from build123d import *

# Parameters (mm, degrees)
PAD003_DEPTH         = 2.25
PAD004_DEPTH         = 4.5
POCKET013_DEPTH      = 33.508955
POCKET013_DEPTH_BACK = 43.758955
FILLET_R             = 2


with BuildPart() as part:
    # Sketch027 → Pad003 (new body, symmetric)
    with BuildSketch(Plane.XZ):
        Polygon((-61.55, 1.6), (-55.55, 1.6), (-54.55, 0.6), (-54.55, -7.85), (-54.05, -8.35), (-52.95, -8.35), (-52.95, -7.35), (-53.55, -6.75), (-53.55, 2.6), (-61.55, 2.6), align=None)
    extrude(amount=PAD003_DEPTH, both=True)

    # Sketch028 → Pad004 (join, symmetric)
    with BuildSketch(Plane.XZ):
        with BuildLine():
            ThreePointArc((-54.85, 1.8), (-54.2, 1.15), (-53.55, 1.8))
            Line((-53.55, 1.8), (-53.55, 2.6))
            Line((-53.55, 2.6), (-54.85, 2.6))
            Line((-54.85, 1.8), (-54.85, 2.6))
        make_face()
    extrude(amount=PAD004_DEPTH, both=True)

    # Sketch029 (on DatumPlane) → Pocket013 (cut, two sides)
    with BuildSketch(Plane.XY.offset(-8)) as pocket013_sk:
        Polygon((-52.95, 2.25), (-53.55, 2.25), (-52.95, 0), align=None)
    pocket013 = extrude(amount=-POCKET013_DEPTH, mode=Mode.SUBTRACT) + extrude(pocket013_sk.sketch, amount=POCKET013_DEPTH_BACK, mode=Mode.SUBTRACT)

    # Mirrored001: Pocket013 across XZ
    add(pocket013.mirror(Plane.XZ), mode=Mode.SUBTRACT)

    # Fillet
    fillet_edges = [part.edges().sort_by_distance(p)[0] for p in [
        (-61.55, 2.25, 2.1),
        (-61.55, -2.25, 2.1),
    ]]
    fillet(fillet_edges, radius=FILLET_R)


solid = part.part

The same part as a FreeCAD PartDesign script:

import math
import FreeCAD as App
import Part
import Sketcher
from FreeCAD import Vector
Q = App.Units.Quantity


def edges_at(feature, points):
    """Names of the edges that pass closest to the given points."""
    edges = feature.Shape.Edges
    near = lambda p: min(range(len(edges)), key=lambda i: edges[i].distToShape(Part.Vertex(*p))[0])
    return sorted({f"Edge{near(p) + 1}" for p in points})


def add_polygon(sketch, points):
    """Adds a closed chain of lines whose ends are joined by coincident constraints."""
    first, n = sketch.GeometryCount, len(points)
    for a, b in zip(points, points[1:] + points[:1]):
        sketch.addGeometry(Part.LineSegment(App.Vector(*a, 0), App.Vector(*b, 0)), False)
    for i in range(n):
        sketch.addConstraint(Sketcher.Constraint("Coincident", first + i, 2, first + (i + 1) % n, 1))

doc = App.newDocument("Part")
body = doc.addObject("PartDesign::Body", "Body")

sketch1 = body.newObject("Sketcher::SketchObject", "Sketch")
sketch1.AttachmentSupport = (doc.getObject("XZ_Plane"), [""])
sketch1.MapMode = "FlatFace"
add_polygon(sketch1, [(-61.5, 1.6), (-55.5, 1.6), (-54.5, 0.6), (-54.5, -7.8), (-54, -8.3), (-53, -8.3), (-53, -7.3), (-53.5, -6.8), (-53.5, 2.6), (-61.5, 2.6)])
sketch1.addConstraint(Sketcher.Constraint("Horizontal", 0))
sketch1.addConstraint(Sketcher.Constraint("Vertical", 2))
sketch1.addConstraint(Sketcher.Constraint("Horizontal", 4))
sketch1.addConstraint(Sketcher.Constraint("Vertical", 5))
sketch1.addConstraint(Sketcher.Constraint("Vertical", 7))
sketch1.addConstraint(Sketcher.Constraint("Horizontal", 8))
sketch1.addConstraint(Sketcher.Constraint("Vertical", 9))
sketch1.addConstraint(Sketcher.Constraint("Parallel", 1, 3))
sketch1.addConstraint(Sketcher.Constraint("Parallel", 3, 6))
sketch1.addConstraint(Sketcher.Constraint("Equal", 5, 9))
sketch1.addConstraint(Sketcher.Constraint("DistanceX", 0, 1, 0, 2, Q("6 mm")))
sketch1.addConstraint(Sketcher.Constraint("DistanceX", 8, 2, 8, 1, Q("8 mm")))
sketch1.addConstraint(Sketcher.Constraint("DistanceY", 5, 1, 5, 2, Q("1 mm")))
sketch1.addConstraint(Sketcher.Constraint("Angle", 1, Q("-45 deg")))
sketch1.addConstraint(Sketcher.Constraint("DistanceX", 4, 1, 4, 2, Q("1.1 mm")))
sketch1.addConstraint(Sketcher.Constraint("DistanceX", 0, 2, 1, 2, Q("1 mm")))
sketch1.addConstraint(Sketcher.Constraint("DistanceY", 2, 2, 2, 1, Q("8.45 mm")))
sketch1.addConstraint(Sketcher.Constraint("DistanceY", -1, 1, 0, 2, Q("1.6 mm")))
sketch1.addConstraint(Sketcher.Constraint("DistanceX", 2, 2, 3, 2, Q("0.5 mm")))
sketch1.addConstraint(Sketcher.Constraint("DistanceX", 0, 2, -1, 1, Q("55.55 mm")))
pad1 = body.newObject("PartDesign::Pad", "Pad")
pad1.Profile = sketch1
pad1.Length = 4.5
pad1.Midplane = True

sketch2 = body.newObject("Sketcher::SketchObject", "Sketch001")
sketch2.AttachmentSupport = (doc.getObject("XZ_Plane"), [""])
sketch2.MapMode = "FlatFace"
sketch2.addGeometry(Part.ArcOfCircle(Part.Circle(Vector(-54.2, 1.8, 0), Vector(0, 0, 1), 0.7), math.radians(180), math.radians(360)), False)
sketch2.addGeometry(Part.LineSegment(Vector(-53.5, 1.8, 0), Vector(-53.5, 2.6, 0)), False)
sketch2.addGeometry(Part.LineSegment(Vector(-53.5, 2.6, 0), Vector(-54.9, 2.6, 0)), False)
sketch2.addGeometry(Part.LineSegment(Vector(-54.9, 2.6, 0), Vector(-54.9, 1.8, 0)), False)
sketch2.addConstraint(Sketcher.Constraint("Tangent", 0, 2, 1, 1))
sketch2.addConstraint(Sketcher.Constraint("Coincident", 1, 2, 2, 1))
sketch2.addConstraint(Sketcher.Constraint("Coincident", 2, 2, 3, 1))
sketch2.addConstraint(Sketcher.Constraint("Tangent", 3, 2, 0, 1))
sketch2.addConstraint(Sketcher.Constraint("Vertical", 1))
sketch2.addConstraint(Sketcher.Constraint("Horizontal", 2))
sketch2.addConstraint(Sketcher.Constraint("Vertical", 3))
sketch2.addConstraint(Sketcher.Constraint("Radius", 0, Q("0.65 mm")))
sketch2.addConstraint(Sketcher.Constraint("DistanceY", 1, 1, 1, 2, Q("0.8 mm")))
sketch2.addConstraint(Sketcher.Constraint("DistanceX", 0, 3, -1, 1, Q("54.2 mm")))
sketch2.addConstraint(Sketcher.Constraint("DistanceY", -1, 1, 0, 3, Q("1.8 mm")))
pad2 = body.newObject("PartDesign::Pad", "Pad001")
pad2.Profile = sketch2
pad2.Length = 9
pad2.Midplane = True

sketch3 = body.newObject("Sketcher::SketchObject", "Sketch002")
sketch3.AttachmentSupport = (doc.getObject("XY_Plane"), [""])
sketch3.MapMode = "FlatFace"
sketch3.AttachmentOffset = App.Placement(Vector(0, 0, -8), App.Rotation())
add_polygon(sketch3, [(-53, 2.2), (-53.5, 2.2), (-53, 0)])
sketch3.addConstraint(Sketcher.Constraint("Horizontal", 0))
sketch3.addConstraint(Sketcher.Constraint("Vertical", 2))
sketch3.addConstraint(Sketcher.Constraint("PointOnObject", 1, 2, -1))
sketch3.addConstraint(Sketcher.Constraint("DistanceX", 0, 2, 0, 1, Q("0.6 mm")))
sketch3.addConstraint(Sketcher.Constraint("DistanceY", 2, 1, 2, 2, Q("2.25 mm")))
sketch3.addConstraint(Sketcher.Constraint("DistanceX", 0, 2, -1, 1, Q("53.55 mm")))
pocket1 = body.newObject("PartDesign::Pocket", "Pocket")
pocket1.Profile = sketch3
pocket1.Type = "ThroughAll"
pocket1.Midplane = True
doc.recompute()

mirrored = body.newObject("PartDesign::Mirrored", "Mirrored")
mirrored.Originals = [pocket1]
mirrored.MirrorPlane = (doc.getObject("XZ_Plane"), [""])
body.Tip = mirrored
doc.recompute()

fillet = body.newObject("PartDesign::Fillet", "Fillet")
fillet.Base = (mirrored, edges_at(mirrored, [(-61.55, 2.25, 2.1), (-61.55, -2.25, 2.1)]))
fillet.Radius = 2

doc.recompute()
